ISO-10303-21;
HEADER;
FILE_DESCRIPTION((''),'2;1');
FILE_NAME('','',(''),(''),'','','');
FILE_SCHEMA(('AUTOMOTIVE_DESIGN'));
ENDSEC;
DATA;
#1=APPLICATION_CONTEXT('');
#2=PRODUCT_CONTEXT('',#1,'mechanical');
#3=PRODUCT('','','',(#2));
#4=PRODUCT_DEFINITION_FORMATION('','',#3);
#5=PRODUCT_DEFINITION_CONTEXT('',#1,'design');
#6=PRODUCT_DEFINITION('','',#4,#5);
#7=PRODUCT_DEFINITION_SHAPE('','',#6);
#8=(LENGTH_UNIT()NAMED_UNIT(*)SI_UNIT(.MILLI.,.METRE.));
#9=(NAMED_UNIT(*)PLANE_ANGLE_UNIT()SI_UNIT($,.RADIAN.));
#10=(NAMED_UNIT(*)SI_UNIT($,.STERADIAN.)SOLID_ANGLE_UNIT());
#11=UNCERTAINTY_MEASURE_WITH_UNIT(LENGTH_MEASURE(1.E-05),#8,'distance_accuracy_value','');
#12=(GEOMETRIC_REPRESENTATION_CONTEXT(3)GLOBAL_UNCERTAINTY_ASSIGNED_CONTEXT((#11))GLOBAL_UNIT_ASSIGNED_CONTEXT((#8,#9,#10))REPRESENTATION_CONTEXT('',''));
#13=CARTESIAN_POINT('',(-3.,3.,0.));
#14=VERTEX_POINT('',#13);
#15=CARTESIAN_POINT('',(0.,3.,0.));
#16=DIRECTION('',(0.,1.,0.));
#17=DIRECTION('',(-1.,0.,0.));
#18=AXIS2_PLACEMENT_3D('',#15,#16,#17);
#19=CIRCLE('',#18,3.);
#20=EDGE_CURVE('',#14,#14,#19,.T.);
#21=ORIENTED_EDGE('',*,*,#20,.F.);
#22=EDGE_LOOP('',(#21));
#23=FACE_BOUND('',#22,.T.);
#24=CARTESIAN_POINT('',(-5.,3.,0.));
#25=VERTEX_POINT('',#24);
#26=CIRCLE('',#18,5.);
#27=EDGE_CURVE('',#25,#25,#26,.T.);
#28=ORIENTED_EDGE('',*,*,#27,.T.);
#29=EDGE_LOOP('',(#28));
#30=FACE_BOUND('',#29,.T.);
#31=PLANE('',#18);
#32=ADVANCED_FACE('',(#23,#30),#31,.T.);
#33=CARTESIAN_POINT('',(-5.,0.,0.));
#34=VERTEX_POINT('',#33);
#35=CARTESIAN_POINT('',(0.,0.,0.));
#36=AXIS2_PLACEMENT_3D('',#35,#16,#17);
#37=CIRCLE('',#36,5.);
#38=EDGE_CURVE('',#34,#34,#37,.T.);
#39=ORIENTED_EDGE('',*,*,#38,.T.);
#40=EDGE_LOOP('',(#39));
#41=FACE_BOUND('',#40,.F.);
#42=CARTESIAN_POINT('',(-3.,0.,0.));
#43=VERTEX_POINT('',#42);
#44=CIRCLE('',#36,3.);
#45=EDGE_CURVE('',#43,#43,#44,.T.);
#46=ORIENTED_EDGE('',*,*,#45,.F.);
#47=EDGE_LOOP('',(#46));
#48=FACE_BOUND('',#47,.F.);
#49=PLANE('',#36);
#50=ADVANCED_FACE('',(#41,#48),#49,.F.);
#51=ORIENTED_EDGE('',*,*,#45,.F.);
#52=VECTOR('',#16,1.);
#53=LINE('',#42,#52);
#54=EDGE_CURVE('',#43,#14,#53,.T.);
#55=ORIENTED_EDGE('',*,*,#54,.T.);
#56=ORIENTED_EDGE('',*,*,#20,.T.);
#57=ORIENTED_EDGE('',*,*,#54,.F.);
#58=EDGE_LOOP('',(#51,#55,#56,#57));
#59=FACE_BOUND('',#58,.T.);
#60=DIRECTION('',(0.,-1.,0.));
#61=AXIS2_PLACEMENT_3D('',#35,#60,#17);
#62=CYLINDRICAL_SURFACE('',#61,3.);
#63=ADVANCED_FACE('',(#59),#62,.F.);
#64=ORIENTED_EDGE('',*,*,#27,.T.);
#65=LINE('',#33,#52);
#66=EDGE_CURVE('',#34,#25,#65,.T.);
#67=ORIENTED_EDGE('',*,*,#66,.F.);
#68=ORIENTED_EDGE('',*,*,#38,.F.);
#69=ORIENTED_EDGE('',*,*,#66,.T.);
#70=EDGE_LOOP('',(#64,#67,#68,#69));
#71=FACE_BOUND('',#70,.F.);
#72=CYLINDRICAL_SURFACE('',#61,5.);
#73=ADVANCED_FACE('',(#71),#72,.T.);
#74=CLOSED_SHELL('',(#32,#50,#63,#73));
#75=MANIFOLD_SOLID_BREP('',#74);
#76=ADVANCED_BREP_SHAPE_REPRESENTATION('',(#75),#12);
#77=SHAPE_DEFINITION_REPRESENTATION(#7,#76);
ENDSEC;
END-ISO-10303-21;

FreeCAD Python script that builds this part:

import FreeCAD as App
import Part
import Sketcher

doc = App.newDocument("Part")
body = doc.addObject("PartDesign::Body", "Body")

sketch1 = body.newObject("Sketcher::SketchObject", "Sketch")
sketch1.AttachmentSupport = (doc.getObject("XZ_Plane"), [""])
sketch1.MapMode = "FlatFace"
sketch1.addGeometry(Part.Circle(App.Vector(0, 0, 0), App.Vector(0, 0, 1), 5), False)
sketch1.addGeometry(Part.Circle(App.Vector(0, 0, 0), App.Vector(0, 0, 1), 3), False)
sketch1.addConstraint(Sketcher.Constraint("Coincident", 0, 3, -1, 1))
sketch1.addConstraint(Sketcher.Constraint("Coincident", 1, 3, -1, 1))
sketch1.addConstraint(Sketcher.Constraint("Diameter", 0, 10.0))
sketch1.addConstraint(Sketcher.Constraint("Diameter", 1, 6.0))
pad1 = body.newObject("PartDesign::Pad", "Pad")
pad1.Profile = sketch1
pad1.Length = 3
pad1.Reversed = True

doc.recompute()
